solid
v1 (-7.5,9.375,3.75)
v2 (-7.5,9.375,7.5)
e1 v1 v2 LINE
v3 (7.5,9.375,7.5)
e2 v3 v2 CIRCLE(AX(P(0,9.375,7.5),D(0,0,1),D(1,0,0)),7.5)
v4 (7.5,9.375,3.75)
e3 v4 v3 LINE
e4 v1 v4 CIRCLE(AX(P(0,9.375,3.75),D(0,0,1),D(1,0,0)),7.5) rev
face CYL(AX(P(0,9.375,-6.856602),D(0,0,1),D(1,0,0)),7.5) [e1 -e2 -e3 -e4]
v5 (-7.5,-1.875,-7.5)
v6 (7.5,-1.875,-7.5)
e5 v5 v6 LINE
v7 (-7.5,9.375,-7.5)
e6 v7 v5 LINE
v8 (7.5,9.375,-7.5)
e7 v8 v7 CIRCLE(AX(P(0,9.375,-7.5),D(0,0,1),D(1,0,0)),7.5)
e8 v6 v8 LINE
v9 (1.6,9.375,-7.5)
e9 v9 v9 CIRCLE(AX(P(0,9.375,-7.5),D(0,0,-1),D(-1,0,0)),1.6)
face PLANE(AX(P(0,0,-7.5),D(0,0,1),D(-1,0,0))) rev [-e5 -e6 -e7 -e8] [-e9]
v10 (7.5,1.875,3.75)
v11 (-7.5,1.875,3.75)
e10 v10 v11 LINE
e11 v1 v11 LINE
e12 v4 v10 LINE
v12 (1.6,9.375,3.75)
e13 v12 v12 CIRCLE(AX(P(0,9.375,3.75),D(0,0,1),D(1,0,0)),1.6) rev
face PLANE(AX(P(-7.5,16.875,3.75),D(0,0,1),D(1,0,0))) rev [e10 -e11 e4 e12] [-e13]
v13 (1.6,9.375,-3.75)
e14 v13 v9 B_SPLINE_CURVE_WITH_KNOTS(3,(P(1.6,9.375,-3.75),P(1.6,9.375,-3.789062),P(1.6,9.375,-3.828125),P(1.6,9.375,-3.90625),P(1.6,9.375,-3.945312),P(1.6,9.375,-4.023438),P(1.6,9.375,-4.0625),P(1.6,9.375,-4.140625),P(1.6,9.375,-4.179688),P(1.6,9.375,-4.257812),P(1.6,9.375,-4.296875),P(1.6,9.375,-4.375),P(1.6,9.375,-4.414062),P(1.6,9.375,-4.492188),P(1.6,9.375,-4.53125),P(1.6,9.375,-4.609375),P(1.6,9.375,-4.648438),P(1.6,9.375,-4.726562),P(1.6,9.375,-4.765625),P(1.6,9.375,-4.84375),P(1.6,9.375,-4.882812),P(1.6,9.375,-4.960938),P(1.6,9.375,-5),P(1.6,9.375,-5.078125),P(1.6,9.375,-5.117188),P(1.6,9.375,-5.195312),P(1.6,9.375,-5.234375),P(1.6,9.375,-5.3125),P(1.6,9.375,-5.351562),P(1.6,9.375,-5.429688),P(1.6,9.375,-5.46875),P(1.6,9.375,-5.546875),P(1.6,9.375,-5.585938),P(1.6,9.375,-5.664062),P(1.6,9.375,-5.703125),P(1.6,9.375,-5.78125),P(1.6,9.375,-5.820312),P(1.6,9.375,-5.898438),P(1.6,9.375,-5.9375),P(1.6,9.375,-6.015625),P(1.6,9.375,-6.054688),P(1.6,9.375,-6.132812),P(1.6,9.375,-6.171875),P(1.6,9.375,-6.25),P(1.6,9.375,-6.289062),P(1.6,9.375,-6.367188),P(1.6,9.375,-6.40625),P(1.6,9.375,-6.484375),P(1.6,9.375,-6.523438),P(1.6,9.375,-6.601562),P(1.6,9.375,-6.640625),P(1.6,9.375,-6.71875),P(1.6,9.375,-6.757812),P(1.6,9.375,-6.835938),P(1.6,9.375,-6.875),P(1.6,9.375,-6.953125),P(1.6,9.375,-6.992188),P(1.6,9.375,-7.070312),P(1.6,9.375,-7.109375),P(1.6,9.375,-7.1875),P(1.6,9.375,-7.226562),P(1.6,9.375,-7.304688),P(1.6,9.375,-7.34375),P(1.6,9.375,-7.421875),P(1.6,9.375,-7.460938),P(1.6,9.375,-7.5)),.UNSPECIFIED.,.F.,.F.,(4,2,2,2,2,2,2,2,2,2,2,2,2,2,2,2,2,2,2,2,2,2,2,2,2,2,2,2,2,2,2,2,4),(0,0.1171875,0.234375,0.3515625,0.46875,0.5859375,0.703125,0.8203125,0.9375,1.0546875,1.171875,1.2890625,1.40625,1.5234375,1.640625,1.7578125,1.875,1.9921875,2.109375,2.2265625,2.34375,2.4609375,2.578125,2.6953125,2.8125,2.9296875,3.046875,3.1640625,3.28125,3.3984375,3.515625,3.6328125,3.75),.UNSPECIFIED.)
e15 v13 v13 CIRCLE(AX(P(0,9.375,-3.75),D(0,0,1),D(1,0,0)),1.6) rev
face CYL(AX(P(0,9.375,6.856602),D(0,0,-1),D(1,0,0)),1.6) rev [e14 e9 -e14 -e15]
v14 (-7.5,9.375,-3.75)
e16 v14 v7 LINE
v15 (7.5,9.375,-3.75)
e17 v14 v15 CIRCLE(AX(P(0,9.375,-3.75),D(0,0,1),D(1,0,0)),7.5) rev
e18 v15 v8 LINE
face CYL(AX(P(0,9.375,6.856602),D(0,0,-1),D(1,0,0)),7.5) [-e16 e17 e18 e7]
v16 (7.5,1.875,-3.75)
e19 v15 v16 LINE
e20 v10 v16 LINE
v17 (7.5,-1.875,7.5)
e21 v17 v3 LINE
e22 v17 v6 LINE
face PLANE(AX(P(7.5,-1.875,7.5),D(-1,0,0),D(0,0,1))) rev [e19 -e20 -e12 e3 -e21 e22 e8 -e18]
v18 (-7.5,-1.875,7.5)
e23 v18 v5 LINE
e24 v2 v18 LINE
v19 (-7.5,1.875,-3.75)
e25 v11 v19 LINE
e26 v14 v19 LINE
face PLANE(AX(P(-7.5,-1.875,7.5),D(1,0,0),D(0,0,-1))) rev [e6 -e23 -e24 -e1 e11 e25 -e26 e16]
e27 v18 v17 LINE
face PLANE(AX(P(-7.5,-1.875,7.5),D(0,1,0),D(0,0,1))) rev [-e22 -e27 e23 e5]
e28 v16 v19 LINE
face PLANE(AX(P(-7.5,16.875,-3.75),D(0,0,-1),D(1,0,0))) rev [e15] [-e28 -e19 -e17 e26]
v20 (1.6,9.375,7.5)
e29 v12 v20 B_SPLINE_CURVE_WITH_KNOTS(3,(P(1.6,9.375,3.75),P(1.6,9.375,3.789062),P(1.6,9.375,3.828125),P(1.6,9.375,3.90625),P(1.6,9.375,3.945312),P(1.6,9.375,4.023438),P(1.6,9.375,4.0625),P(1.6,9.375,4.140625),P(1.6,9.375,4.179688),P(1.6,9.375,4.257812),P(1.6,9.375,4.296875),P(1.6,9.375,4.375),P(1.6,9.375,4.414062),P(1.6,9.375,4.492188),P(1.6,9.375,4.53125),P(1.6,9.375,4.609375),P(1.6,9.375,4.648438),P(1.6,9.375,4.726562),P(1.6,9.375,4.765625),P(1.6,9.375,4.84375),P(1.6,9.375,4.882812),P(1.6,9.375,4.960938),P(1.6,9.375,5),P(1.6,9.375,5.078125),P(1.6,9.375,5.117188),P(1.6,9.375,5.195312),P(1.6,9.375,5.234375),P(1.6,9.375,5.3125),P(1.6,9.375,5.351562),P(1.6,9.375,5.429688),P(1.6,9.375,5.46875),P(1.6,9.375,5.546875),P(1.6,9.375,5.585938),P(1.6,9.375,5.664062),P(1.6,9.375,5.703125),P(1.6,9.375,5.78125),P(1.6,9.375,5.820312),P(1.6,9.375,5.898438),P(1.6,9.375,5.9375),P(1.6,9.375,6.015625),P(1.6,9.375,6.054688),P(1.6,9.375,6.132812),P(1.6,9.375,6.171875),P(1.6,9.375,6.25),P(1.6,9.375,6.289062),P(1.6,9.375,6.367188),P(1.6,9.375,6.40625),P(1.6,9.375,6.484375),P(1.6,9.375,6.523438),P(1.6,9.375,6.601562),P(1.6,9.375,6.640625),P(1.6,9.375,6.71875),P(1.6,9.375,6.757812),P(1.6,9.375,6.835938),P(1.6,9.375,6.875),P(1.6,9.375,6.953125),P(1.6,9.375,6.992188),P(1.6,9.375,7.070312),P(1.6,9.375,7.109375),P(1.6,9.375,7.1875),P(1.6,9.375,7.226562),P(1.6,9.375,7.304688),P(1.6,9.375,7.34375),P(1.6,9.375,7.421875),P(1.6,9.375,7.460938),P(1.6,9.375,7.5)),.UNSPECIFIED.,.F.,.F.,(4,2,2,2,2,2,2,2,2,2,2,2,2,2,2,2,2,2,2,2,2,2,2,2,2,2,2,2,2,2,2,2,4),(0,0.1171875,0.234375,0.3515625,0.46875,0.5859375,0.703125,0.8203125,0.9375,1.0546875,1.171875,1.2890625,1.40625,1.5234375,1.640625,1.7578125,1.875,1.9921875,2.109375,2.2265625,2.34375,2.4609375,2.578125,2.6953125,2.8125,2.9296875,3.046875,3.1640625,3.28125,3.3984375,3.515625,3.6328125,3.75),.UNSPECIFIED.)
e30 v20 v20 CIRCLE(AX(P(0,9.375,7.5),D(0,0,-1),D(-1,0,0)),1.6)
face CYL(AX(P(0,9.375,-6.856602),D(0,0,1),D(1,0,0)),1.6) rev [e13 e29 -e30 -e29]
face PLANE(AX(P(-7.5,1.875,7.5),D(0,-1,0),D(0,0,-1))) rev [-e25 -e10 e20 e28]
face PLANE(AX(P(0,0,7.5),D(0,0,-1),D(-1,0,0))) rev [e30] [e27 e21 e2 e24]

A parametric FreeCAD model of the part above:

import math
import FreeCAD as App
import Part
import Sketcher
from FreeCAD import Vector

doc = App.newDocument("Part")
body = doc.addObject("PartDesign::Body", "Body")

sketch1 = doc.addObject("Sketcher::SketchObject", "Sketch")
body.addObject(sketch1)
sketch1.AttachmentSupport = (doc.XY_Plane, [""])
sketch1.MapMode = "FlatFace"
sketch1.addGeometry([
    Part.LineSegment(Vector(-7.5, 1.875, 0), Vector(-7.5, -1.875, 0)),
    Part.LineSegment(Vector(-7.5, -1.875, 0), Vector(7.5, -1.875, 0)),
    Part.LineSegment(Vector(7.5, -1.875, 0), Vector(7.5, 1.875, 0)),
    Part.LineSegment(Vector(7.5, 1.875, 0), Vector(-7.5, 1.875, 0)),
], False)
sketch1.addConstraint([
    Sketcher.Constraint("Coincident", 0, 2, 1, 1),
    Sketcher.Constraint("Coincident", 1, 2, 2, 1),
    Sketcher.Constraint("Coincident", 2, 2, 3, 1),
    Sketcher.Constraint("Coincident", 3, 2, 0, 1),
    Sketcher.Constraint("Vertical", 0),
    Sketcher.Constraint("Horizontal", 1),
    Sketcher.Constraint("Vertical", 2),
    Sketcher.Constraint("Horizontal", 3),
    Sketcher.Constraint("Symmetric", 0, 2, 2, 2, -1, 1),
    Sketcher.Constraint("DistanceX", 1, 1, 1, 2, 15.0),
    Sketcher.Constraint("DistanceY", 0, 2, 0, 1, 3.75),
])
pad1 = doc.addObject("PartDesign::Pad", "Pad")
body.addObject(pad1)
pad1.Profile = sketch1
pad1.Length = 7.5

sketch2 = doc.addObject("Sketcher::SketchObject", "Sketch001")
body.addObject(sketch2)
sketch2.AttachmentSupport = (doc.XZ_Plane, [""])
sketch2.MapMode = "FlatFace"
sketch2.AttachmentOffset = App.Placement(Vector(0, 0, -1.875), App.Rotation())
sketch2.addGeometry([
    Part.LineSegment(Vector(-7.5, 3.75, 0), Vector(-7.5, 7.5, 0)),
    Part.LineSegment(Vector(-7.5, 7.5, 0), Vector(7.5, 7.5, 0)),
    Part.LineSegment(Vector(7.5, 7.5, 0), Vector(7.5, 3.75, 0)),
    Part.LineSegment(Vector(7.5, 3.75, 0), Vector(-7.5, 3.75, 0)),
], False)
sketch2.addConstraint([
    Sketcher.Constraint("Coincident", 0, 2, 1, 1),
    Sketcher.Constraint("Coincident", 1, 2, 2, 1),
    Sketcher.Constraint("Coincident", 2, 2, 3, 1),
    Sketcher.Constraint("Coincident", 3, 2, 0, 1),
    Sketcher.Constraint("Vertical", 0),
    Sketcher.Constraint("Horizontal", 1),
    Sketcher.Constraint("Vertical", 2),
    Sketcher.Constraint("Horizontal", 3),
    Sketcher.Constraint("DistanceX", 1, 1, 1, 2, 15.0),
    Sketcher.Constraint("DistanceY", 0, 1, 0, 2, 3.75),
    Sketcher.Constraint("DistanceX", 0, 2, -1, 1, 7.5),
    Sketcher.Constraint("DistanceY", -1, 1, 0, 2, 7.5),
])
pad2 = doc.addObject("PartDesign::Pad", "Pad001")
body.addObject(pad2)
pad2.Profile = sketch2
pad2.Length = 15
pad2.Reversed = True

sketch3 = doc.addObject("Sketcher::SketchObject", "Sketch002")
body.addObject(sketch3)
sketch3.AttachmentSupport = (doc.XY_Plane, [""])
sketch3.MapMode = "FlatFace"
sketch3.AttachmentOffset = App.Placement(Vector(0, 0, 7.5), App.Rotation())
sketch3.addGeometry([
    Part.Circle(Vector(0, 9.375, 0), Vector(0, 0, 1), 1.6),
    Part.ArcOfCircle(Part.Circle(Vector(0, 9.375, 0), Vector(0, 0, 1), 7.5), math.radians(0), math.radians(90)),
    Part.LineSegment(Vector(7.5, 9.375, 0), Vector(7.5, 16.875, 0)),
    Part.LineSegment(Vector(7.5, 16.875, 0), Vector(0, 16.875, 0)),
    Part.ArcOfCircle(Part.Circle(Vector(0, 9.375, 0), Vector(0, 0, 1), 7.5), math.radians(90), math.radians(180)),
    Part.LineSegment(Vector(0, 16.875, 0), Vector(-7.5, 16.875, 0)),
    Part.LineSegment(Vector(-7.5, 16.875, 0), Vector(-7.5, 9.375, 0)),
], False)
sketch3.addConstraint([
    Sketcher.Constraint("Tangent", 1, 1, 2, 1),
    Sketcher.Constraint("Coincident", 2, 2, 3, 1),
    Sketcher.Constraint("Tangent", 3, 2, 1, 2),
    Sketcher.Constraint("Tangent", 4, 1, 5, 1),
    Sketcher.Constraint("Coincident", 5, 2, 6, 1),
    Sketcher.Constraint("Tangent", 6, 2, 4, 2),
    Sketcher.Constraint("Vertical", 2),
    Sketcher.Constraint("Horizontal", 3),
    Sketcher.Constraint("Horizontal", 5),
    Sketcher.Constraint("Vertical", 6),
    Sketcher.Constraint("Coincident", 1, 3, 0, 3),
    Sketcher.Constraint("Coincident", 4, 3, 0, 3),
    Sketcher.Constraint("Equal", 1, 4),
    Sketcher.Constraint("PointOnObject", 0, 3, -2),
    Sketcher.Constraint("Diameter", 0, 3.2),
    Sketcher.Constraint("Radius", 1, 7.5),
    Sketcher.Constraint("DistanceY", -1, 1, 0, 3, 9.375),
])
pocket1 = doc.addObject("PartDesign::Pocket", "Pocket")
body.addObject(pocket1)
pocket1.Profile = sketch3
pocket1.Type = "ThroughAll"
pocket1.Midplane = True
body2 = doc.addObject("PartDesign::Body", "Body001")
doc.recompute()

body2.BaseFeature = body
doc.recompute()

mirroring = doc.addObject("Part::Mirroring", "Mirroring")
mirroring.Source = body
mirroring.Base = Vector(0, 0, 0)
mirroring.Normal = Vector(0, 0, -1)
body3 = doc.addObject("PartDesign::Body", "Body002")
body3.BaseFeature = mirroring
boolean = doc.addObject("PartDesign::Boolean", "Boolean")
body2.addObject(boolean)
boolean.Type = "Fuse"
boolean.addObjects([body3])
doc.recompute()
mirroring.Visibility = False

doc.recompute()
